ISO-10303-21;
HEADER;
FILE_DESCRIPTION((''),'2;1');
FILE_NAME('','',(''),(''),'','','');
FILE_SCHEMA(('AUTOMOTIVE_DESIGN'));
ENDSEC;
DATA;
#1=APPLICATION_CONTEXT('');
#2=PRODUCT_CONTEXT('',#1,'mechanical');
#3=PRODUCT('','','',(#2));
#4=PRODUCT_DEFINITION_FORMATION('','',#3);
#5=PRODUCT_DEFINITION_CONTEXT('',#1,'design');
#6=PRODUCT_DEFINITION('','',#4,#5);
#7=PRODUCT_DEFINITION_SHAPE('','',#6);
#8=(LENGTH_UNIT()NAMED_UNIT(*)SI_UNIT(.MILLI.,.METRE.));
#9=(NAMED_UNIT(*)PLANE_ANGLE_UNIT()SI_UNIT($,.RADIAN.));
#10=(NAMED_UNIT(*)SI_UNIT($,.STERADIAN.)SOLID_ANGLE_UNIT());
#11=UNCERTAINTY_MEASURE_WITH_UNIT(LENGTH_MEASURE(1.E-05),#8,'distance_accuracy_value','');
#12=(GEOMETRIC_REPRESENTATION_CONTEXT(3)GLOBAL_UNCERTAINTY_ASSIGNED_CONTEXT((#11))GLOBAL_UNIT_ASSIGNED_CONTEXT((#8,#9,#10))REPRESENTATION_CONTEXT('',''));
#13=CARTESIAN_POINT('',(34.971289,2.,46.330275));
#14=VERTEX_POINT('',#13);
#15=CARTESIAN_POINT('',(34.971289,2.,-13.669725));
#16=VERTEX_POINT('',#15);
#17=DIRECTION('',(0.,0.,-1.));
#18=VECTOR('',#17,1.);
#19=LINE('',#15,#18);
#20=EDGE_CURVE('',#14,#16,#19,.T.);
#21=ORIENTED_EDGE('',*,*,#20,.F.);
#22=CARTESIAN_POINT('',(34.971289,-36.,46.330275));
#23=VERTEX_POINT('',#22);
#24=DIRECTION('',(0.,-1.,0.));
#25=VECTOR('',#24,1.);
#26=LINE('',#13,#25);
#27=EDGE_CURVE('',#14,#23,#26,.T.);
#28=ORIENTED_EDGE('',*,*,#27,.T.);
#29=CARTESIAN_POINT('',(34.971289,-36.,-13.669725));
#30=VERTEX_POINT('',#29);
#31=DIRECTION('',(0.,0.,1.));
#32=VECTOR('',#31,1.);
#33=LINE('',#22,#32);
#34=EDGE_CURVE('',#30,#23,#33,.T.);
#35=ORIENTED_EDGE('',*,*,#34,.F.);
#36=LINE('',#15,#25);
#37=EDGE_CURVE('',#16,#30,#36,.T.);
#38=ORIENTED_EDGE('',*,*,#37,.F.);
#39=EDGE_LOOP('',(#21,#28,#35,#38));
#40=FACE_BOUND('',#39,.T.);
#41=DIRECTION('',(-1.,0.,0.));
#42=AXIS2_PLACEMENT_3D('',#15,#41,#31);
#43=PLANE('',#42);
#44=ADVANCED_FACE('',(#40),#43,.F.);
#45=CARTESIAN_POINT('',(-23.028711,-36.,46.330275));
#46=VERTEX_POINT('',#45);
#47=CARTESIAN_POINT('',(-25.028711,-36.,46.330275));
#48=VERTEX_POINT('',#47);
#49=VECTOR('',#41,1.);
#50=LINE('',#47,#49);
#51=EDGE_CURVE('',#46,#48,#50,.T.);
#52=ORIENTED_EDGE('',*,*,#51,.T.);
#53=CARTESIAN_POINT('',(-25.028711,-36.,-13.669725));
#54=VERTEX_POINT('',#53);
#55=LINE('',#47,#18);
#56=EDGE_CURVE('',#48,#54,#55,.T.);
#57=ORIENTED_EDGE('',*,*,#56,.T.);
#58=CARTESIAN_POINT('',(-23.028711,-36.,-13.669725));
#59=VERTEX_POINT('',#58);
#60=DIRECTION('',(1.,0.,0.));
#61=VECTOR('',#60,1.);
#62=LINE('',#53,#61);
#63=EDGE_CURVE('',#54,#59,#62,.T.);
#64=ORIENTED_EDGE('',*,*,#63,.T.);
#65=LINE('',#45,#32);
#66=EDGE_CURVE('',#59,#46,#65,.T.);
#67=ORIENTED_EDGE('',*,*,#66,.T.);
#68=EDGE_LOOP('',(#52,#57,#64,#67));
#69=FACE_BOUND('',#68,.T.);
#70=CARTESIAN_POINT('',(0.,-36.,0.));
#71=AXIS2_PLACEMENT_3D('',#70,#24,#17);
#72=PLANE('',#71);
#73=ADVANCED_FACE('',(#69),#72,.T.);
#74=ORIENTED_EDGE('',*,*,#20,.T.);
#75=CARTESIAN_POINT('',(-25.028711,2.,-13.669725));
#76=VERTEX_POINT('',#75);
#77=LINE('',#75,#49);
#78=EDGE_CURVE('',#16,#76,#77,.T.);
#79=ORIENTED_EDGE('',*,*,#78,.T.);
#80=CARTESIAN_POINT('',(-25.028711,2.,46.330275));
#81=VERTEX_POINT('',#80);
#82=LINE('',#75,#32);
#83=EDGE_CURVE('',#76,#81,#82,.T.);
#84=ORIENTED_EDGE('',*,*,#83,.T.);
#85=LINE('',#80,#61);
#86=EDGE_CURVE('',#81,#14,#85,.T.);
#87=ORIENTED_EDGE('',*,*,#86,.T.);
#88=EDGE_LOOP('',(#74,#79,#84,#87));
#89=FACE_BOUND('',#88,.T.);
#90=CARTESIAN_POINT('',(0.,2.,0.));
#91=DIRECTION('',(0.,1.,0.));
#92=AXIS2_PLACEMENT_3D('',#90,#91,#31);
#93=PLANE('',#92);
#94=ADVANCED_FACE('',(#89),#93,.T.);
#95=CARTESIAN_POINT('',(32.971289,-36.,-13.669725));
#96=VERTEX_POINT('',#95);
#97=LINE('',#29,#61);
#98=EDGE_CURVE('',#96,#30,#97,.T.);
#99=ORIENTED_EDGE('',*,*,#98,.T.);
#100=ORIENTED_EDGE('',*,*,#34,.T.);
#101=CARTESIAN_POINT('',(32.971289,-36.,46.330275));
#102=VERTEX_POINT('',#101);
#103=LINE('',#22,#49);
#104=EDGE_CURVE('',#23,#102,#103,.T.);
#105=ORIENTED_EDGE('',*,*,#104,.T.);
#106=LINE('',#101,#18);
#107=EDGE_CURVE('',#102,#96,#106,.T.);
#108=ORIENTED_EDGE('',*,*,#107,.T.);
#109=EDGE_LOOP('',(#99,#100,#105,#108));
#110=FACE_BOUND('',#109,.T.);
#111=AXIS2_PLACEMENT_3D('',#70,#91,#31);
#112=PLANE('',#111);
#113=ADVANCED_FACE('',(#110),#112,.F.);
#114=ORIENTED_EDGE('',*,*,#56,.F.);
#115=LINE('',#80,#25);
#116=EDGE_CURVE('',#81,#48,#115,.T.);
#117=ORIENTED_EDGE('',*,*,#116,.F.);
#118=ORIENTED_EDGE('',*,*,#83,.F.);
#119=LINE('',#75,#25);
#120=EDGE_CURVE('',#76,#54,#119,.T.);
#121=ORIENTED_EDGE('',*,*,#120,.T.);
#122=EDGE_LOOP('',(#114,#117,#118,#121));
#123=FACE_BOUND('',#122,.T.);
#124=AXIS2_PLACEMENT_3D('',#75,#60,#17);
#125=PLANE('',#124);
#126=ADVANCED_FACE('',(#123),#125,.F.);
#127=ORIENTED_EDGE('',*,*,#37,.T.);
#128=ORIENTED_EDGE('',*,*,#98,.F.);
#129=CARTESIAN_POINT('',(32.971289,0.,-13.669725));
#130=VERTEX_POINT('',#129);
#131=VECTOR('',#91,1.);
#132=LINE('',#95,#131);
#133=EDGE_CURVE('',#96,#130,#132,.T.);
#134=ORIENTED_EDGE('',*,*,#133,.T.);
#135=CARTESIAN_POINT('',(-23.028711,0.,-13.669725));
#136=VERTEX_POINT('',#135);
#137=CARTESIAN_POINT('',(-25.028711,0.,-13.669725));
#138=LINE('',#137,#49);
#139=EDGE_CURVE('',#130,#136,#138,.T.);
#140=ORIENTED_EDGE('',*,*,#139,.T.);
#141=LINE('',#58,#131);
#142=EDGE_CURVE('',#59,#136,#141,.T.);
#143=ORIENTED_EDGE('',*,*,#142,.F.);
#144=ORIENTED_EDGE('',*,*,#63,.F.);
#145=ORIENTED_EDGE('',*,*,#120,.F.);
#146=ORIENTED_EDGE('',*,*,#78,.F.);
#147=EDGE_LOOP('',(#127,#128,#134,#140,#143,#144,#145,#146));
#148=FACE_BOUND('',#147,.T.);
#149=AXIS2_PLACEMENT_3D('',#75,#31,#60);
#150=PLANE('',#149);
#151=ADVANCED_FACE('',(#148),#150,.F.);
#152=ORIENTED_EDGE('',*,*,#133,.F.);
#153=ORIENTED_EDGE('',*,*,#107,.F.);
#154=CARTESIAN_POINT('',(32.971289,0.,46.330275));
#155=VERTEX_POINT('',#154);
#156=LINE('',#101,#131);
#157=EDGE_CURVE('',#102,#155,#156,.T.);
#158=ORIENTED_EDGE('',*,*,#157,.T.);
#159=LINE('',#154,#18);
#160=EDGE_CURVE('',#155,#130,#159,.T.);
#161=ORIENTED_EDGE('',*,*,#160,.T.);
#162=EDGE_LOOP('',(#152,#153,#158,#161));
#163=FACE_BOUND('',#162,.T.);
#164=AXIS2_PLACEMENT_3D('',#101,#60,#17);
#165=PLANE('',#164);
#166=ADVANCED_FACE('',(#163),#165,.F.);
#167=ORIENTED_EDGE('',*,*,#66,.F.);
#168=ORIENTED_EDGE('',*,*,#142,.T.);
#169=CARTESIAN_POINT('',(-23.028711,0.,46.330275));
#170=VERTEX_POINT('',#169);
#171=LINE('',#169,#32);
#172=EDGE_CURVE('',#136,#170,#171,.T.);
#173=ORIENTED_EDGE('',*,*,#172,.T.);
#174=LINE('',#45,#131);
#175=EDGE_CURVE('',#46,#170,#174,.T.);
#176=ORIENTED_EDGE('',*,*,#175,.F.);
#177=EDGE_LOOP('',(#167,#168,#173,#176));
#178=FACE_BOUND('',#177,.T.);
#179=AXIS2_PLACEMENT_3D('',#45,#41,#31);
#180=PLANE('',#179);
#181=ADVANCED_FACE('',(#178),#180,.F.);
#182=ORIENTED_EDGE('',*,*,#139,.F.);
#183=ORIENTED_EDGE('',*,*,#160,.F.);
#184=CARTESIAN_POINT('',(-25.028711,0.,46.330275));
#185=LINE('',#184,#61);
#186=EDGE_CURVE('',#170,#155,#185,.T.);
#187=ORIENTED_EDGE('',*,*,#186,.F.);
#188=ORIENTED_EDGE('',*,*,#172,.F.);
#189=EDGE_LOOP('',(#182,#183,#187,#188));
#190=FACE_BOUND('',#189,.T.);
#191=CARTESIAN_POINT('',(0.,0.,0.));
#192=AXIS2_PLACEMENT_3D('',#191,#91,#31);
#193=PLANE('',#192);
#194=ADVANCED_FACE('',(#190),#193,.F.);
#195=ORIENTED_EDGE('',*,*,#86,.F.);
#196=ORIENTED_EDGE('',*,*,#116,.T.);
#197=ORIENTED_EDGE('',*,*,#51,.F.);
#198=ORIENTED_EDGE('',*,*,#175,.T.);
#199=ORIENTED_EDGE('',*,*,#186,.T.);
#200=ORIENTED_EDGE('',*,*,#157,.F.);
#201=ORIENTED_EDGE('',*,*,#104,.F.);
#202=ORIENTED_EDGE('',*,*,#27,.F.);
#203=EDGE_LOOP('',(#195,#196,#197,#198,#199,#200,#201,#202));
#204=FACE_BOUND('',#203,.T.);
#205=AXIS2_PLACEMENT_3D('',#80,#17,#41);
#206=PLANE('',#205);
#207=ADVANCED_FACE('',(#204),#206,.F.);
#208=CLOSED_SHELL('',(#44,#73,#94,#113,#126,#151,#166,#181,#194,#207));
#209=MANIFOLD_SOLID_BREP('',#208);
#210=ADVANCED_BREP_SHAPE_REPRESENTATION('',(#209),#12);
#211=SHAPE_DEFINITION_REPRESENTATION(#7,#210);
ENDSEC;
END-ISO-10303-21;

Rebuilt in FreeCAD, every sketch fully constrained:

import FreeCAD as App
import Part
import Sketcher
from FreeCAD import Vector
Q = App.Units.Quantity

doc = App.newDocument("Part")
body = doc.addObject("PartDesign::Body", "Body")

# Sketch on XZ plane
sketch1 = body.newObject("Sketcher::SketchObject", "Sketch")
sketch1.AttachmentSupport = (doc.getObject("XZ_Plane"), [""])
sketch1.MapMode = "FlatFace"
sketch1.addGeometry(Part.LineSegment(Vector(-25.028711, -13.669725, 0), Vector(-25.028711, 46.330275, 0)), False)
sketch1.addGeometry(Part.LineSegment(Vector(-25.028711, 46.330275, 0), Vector(34.971289, 46.330275, 0)), False)
sketch1.addGeometry(Part.LineSegment(Vector(34.971289, 46.330275, 0), Vector(34.971289, -13.669725, 0)), False)
sketch1.addGeometry(Part.LineSegment(Vector(34.971289, -13.669725, 0), Vector(-25.028711, -13.669725, 0)), False)
sketch1.addConstraint(Sketcher.Constraint("Coincident", 0, 2, 1, 1))
sketch1.addConstraint(Sketcher.Constraint("Coincident", 1, 2, 2, 1))
sketch1.addConstraint(Sketcher.Constraint("Coincident", 2, 2, 3, 1))
sketch1.addConstraint(Sketcher.Constraint("Coincident", 3, 2, 0, 1))
sketch1.addConstraint(Sketcher.Constraint("Vertical", 0))
sketch1.addConstraint(Sketcher.Constraint("Horizontal", 1))
sketch1.addConstraint(Sketcher.Constraint("Vertical", 2))
sketch1.addConstraint(Sketcher.Constraint("Horizontal", 3))
sketch1.addConstraint(Sketcher.Constraint("Equal", 3, 0))
sketch1.addConstraint(Sketcher.Constraint("DistanceX", 1, 1, 1, 2, Q("60 mm")))
sketch1.addConstraint(Sketcher.Constraint("DistanceX", 0, 2, -1, 1, Q("25.028711 mm")))
sketch1.addConstraint(Sketcher.Constraint("DistanceY", -1, 1, 0, 2, Q("46.330275 mm")))
pad1 = body.newObject("PartDesign::Pad", "Pad")
pad1.Profile = sketch1
pad1.Length = 2
pad1.Reversed = True

# Sketch on XZ plane
sketch2 = body.newObject("Sketcher::SketchObject", "Sketch001")
sketch2.AttachmentSupport = (doc.getObject("XZ_Plane"), [""])
sketch2.MapMode = "FlatFace"
sketch2.addGeometry(Part.LineSegment(Vector(32.971289, 46.330275, 0), Vector(32.971289, -13.669725, 0)), False)
sketch2.addGeometry(Part.LineSegment(Vector(32.971289, -13.669725, 0), Vector(34.971289, -13.669725, 0)), False)
sketch2.addGeometry(Part.LineSegment(Vector(34.971289, -13.669725, 0), Vector(34.971289, 46.330275, 0)), False)
sketch2.addGeometry(Part.LineSegment(Vector(34.971289, 46.330275, 0), Vector(32.971289, 46.330275, 0)), False)
sketch2.addGeometry(Part.LineSegment(Vector(-25.028711, 46.330275, 0), Vector(-25.028711, -13.669725, 0)), False)
sketch2.addGeometry(Part.LineSegment(Vector(-25.028711, -13.669725, 0), Vector(-23.028711, -13.669725, 0)), False)
sketch2.addGeometry(Part.LineSegment(Vector(-23.028711, -13.669725, 0), Vector(-23.028711, 46.330275, 0)), False)
sketch2.addGeometry(Part.LineSegment(Vector(-23.028711, 46.330275, 0), Vector(-25.028711, 46.330275, 0)), False)
sketch2.addConstraint(Sketcher.Constraint("Coincident", 0, 2, 1, 1))
sketch2.addConstraint(Sketcher.Constraint("Coincident", 1, 2, 2, 1))
sketch2.addConstraint(Sketcher.Constraint("Coincident", 2, 2, 3, 1))
sketch2.addConstraint(Sketcher.Constraint("Coincident", 3, 2, 0, 1))
sketch2.addConstraint(Sketcher.Constraint("Coincident", 4, 2, 5, 1))
sketch2.addConstraint(Sketcher.Constraint("Coincident", 5, 2, 6, 1))
sketch2.addConstraint(Sketcher.Constraint("Coincident", 6, 2, 7, 1))
sketch2.addConstraint(Sketcher.Constraint("Coincident", 7, 2, 4, 1))
sketch2.addConstraint(Sketcher.Constraint("Vertical", 0))
sketch2.addConstraint(Sketcher.Constraint("Horizontal", 1))
sketch2.addConstraint(Sketcher.Constraint("Vertical", 2))
sketch2.addConstraint(Sketcher.Constraint("Horizontal", 3))
sketch2.addConstraint(Sketcher.Constraint("Vertical", 4))
sketch2.addConstraint(Sketcher.Constraint("Horizontal", 5))
sketch2.addConstraint(Sketcher.Constraint("Vertical", 6))
sketch2.addConstraint(Sketcher.Constraint("Horizontal", 7))
sketch2.addConstraint(Sketcher.Constraint("Horizontal", 1, 2, 4, 2))
sketch2.addConstraint(Sketcher.Constraint("Horizontal", 3, 2, 6, 2))
sketch2.addConstraint(Sketcher.Constraint("Equal", 3, 5))
sketch2.addConstraint(Sketcher.Constraint("DistanceX", 1, 1, 1, 2, Q("2 mm")))
sketch2.addConstraint(Sketcher.Constraint("DistanceY", 0, 2, 0, 1, Q("60 mm")))
sketch2.addConstraint(Sketcher.Constraint("DistanceX", 4, 2, 0, 2, Q("58 mm")))
sketch2.addConstraint(Sketcher.Constraint("DistanceX", -1, 1, 0, 2, Q("32.971289 mm")))
sketch2.addConstraint(Sketcher.Constraint("DistanceY", 0, 2, -1, 1, Q("13.669725 mm")))
pad2 = body.newObject("PartDesign::Pad", "Pad001")
pad2.Profile = sketch2
pad2.Length = 36

doc.recompute()
